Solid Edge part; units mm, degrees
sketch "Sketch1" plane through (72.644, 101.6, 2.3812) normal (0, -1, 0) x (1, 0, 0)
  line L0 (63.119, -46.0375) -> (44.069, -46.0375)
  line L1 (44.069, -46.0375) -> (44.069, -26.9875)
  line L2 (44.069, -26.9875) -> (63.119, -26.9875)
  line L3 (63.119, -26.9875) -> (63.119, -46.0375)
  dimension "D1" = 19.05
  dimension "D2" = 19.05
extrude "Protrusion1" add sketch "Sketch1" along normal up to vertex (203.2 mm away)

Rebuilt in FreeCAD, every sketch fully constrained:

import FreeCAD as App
import Part
import Sketcher
from FreeCAD import Vector
Q = App.Units.Quantity

doc = App.newDocument("Part")
body = doc.addObject("PartDesign::Body", "Body")

sketch1 = body.newObject("Sketcher::SketchObject", "Sketch")
sketch1.AttachmentSupport = (doc.getObject("XZ_Plane"), [""])
sketch1.MapMode = "FlatFace"
sketch1.AttachmentOffset = App.Placement(Vector(0, 0, -4 * 25.4), App.Rotation())
sketch1.addGeometry([
    Part.LineSegment(Vector(117, -44, 0), Vector(136, -44, 0)),
    Part.LineSegment(Vector(136, -44, 0), Vector(136, -25, 0)),
    Part.LineSegment(Vector(136, -25, 0), Vector(117, -25, 0)),
    Part.LineSegment(Vector(117, -25, 0), Vector(117, -44, 0)),
], False)
sketch1.addConstraint([
    Sketcher.Constraint("Coincident", 0, 2, 1, 1),
    Sketcher.Constraint("Coincident", 1, 2, 2, 1),
    Sketcher.Constraint("Coincident", 2, 2, 3, 1),
    Sketcher.Constraint("Coincident", 3, 2, 0, 1),
    Sketcher.Constraint("Horizontal", 0),
    Sketcher.Constraint("Vertical", 1),
    Sketcher.Constraint("Horizontal", 2),
    Sketcher.Constraint("Vertical", 3),
    Sketcher.Constraint("Equal", 2, 1),
    Sketcher.Constraint("DistanceX", 0, 1, 0, 2, Q("0.75 in")),
    Sketcher.Constraint("DistanceX", -1, 1, 0, 2, Q("5.345 in")),
    Sketcher.Constraint("DistanceY", 0, 2, -1, 1, Q("1.718752 in")),
])
pad1 = body.newObject("PartDesign::Pad", "Pad")
pad1.Profile = sketch1
pad1.Length = Q("8 in")

doc.recompute()
